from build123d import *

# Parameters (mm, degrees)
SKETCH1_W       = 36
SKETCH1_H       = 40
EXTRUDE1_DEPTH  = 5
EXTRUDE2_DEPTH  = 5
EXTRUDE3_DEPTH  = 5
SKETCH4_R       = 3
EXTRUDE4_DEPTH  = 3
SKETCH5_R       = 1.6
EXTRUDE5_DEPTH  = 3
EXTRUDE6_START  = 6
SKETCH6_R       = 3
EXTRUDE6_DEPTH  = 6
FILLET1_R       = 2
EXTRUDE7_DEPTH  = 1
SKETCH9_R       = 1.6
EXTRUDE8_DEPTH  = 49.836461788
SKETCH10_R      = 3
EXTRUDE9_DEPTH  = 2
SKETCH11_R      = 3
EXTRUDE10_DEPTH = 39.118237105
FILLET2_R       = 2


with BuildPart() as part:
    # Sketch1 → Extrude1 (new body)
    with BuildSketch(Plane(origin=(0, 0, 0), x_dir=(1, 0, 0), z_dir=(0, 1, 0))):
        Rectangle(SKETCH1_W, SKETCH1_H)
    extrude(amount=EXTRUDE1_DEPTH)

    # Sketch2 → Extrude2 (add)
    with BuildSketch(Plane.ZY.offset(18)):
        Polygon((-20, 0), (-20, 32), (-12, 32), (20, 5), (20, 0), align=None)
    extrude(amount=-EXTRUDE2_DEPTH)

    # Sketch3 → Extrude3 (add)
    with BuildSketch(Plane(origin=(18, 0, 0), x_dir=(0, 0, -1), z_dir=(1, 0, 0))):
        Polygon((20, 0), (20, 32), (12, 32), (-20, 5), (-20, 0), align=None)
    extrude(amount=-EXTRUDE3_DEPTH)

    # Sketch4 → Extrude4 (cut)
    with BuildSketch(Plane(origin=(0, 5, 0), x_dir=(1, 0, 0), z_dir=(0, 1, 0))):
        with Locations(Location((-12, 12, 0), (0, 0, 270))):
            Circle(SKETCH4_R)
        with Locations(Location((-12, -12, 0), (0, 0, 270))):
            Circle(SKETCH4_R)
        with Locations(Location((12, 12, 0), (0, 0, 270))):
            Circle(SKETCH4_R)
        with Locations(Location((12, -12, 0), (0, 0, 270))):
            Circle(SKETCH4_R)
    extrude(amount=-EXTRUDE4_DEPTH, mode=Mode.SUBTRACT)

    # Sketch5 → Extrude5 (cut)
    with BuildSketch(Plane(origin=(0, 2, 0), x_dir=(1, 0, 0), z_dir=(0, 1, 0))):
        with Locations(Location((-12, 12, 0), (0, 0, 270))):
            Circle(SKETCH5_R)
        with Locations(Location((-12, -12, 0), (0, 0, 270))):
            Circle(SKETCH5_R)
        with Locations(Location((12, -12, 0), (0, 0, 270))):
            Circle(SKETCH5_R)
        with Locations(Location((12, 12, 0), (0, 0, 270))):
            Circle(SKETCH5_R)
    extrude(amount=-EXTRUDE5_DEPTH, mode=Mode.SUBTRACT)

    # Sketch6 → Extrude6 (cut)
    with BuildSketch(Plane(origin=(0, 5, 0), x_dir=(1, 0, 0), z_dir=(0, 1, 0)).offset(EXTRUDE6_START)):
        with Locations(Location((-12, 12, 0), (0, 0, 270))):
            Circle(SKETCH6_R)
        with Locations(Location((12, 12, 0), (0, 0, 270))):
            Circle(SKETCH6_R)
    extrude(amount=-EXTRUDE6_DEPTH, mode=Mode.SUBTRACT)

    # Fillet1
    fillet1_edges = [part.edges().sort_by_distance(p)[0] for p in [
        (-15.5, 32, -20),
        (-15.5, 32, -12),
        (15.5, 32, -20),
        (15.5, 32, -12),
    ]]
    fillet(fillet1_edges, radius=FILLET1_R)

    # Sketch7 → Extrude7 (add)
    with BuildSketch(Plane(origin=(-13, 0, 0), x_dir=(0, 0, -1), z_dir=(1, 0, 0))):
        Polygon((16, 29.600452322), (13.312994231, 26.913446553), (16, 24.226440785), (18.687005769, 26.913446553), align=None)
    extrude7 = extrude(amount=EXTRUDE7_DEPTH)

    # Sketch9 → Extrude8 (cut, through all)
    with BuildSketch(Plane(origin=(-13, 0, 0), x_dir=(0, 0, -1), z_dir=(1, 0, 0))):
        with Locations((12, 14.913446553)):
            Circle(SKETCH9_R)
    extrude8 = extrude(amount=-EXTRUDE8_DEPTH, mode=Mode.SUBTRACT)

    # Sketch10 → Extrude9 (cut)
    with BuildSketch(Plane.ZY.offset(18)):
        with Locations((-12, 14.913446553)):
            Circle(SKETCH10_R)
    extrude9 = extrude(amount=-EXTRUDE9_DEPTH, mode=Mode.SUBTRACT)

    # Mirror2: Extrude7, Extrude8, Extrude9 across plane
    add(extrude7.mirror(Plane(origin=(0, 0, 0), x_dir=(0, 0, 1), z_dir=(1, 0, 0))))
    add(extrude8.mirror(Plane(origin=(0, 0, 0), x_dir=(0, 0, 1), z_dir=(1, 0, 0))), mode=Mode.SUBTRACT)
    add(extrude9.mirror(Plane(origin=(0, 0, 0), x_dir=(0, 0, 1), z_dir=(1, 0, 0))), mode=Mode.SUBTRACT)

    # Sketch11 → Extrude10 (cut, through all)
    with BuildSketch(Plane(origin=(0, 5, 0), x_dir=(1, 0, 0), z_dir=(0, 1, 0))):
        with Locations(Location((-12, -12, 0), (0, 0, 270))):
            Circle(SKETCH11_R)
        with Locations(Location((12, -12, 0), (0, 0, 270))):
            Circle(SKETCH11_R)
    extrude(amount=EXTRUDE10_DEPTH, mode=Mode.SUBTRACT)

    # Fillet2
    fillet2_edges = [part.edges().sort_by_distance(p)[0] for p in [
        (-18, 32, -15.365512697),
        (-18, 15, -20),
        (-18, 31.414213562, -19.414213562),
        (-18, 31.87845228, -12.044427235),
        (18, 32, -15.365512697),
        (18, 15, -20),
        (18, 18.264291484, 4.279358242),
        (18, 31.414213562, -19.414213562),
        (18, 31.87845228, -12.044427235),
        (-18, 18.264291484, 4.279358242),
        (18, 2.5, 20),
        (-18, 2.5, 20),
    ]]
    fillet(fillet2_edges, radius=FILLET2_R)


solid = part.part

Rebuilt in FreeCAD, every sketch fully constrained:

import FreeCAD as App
import Part
import Sketcher
from FreeCAD import Vector


def edges_at(feature, points):
    """Names of the edges that pass closest to the given points."""
    edges = feature.Shape.Edges
    near = lambda p: min(range(len(edges)), key=lambda i: edges[i].distToShape(Part.Vertex(*p))[0])
    return sorted({f"Edge{near(p) + 1}" for p in points})


def add_polygon(sketch, points):
    """Adds a closed chain of lines whose ends are joined by coincident constraints."""
    first, n = sketch.GeometryCount, len(points)
    for a, b in zip(points, points[1:] + points[:1]):
        sketch.addGeometry(Part.LineSegment(App.Vector(*a, 0), App.Vector(*b, 0)), False)
    for i in range(n):
        sketch.addConstraint(Sketcher.Constraint("Coincident", first + i, 2, first + (i + 1) % n, 1))

doc = App.newDocument("Part")
body = doc.addObject("PartDesign::Body", "Body")

sketch1 = body.newObject("Sketcher::SketchObject", "Sketch")
sketch1.AttachmentSupport = (doc.getObject("XZ_Plane"), [""])
sketch1.MapMode = "FlatFace"
add_polygon(sketch1, [(-18, -20), (-18, 20), (18, 20), (18, -20)])
sketch1.addConstraint(Sketcher.Constraint("Vertical", 0))
sketch1.addConstraint(Sketcher.Constraint("Horizontal", 1))
sketch1.addConstraint(Sketcher.Constraint("Vertical", 2))
sketch1.addConstraint(Sketcher.Constraint("Horizontal", 3))
sketch1.addConstraint(Sketcher.Constraint("Symmetric", 0, 2, 2, 2, -1, 1))
sketch1.addConstraint(Sketcher.Constraint("DistanceX", 1, 1, 1, 2, 36.0))
sketch1.addConstraint(Sketcher.Constraint("DistanceY", 0, 1, 0, 2, 40.0))
pad1 = body.newObject("PartDesign::Pad", "Pad")
pad1.Profile = sketch1
pad1.Length = 5
pad1.Reversed = True

sketch2 = body.newObject("Sketcher::SketchObject", "Sketch001")
sketch2.AttachmentSupport = (doc.getObject("YZ_Plane"), [""])
sketch2.MapMode = "FlatFace"
sketch2.AttachmentOffset = App.Placement(Vector(0, 0, -18), App.Rotation())
add_polygon(sketch2, [(32, -20), (0, -20), (0, 20), (5, 20), (32, -12)])
sketch2.addConstraint(Sketcher.Constraint("Horizontal", 0))
sketch2.addConstraint(Sketcher.Constraint("Vertical", 1))
sketch2.addConstraint(Sketcher.Constraint("Horizontal", 2))
sketch2.addConstraint(Sketcher.Constraint("Vertical", 4))
sketch2.addConstraint(Sketcher.Constraint("Symmetric", 0, 2, 1, 2, -1, 1))
sketch2.addConstraint(Sketcher.Constraint("DistanceX", 0, 2, 0, 1, 32.0))
sketch2.addConstraint(Sketcher.Constraint("DistanceX", 2, 1, 2, 2, 5.0))
sketch2.addConstraint(Sketcher.Constraint("DistanceY", 1, 1, 1, 2, 40.0))
sketch2.addConstraint(Sketcher.Constraint("DistanceY", 4, 2, 4, 1, 8.0))
pad2 = body.newObject("PartDesign::Pad", "Pad001")
pad2.Profile = sketch2
pad2.Length = 5

sketch3 = body.newObject("Sketcher::SketchObject", "Sketch002")
sketch3.AttachmentSupport = (doc.getObject("YZ_Plane"), [""])
sketch3.MapMode = "FlatFace"
sketch3.AttachmentOffset = App.Placement(Vector(0, 0, 18), App.Rotation())
add_polygon(sketch3, [(0, -20), (32, -20), (32, -12), (5, 20), (0, 20)])
sketch3.addConstraint(Sketcher.Constraint("Horizontal", 0))
sketch3.addConstraint(Sketcher.Constraint("Vertical", 1))
sketch3.addConstraint(Sketcher.Constraint("Horizontal", 3))
sketch3.addConstraint(Sketcher.Constraint("Vertical", 4))
sketch3.addConstraint(Sketcher.Constraint("Symmetric", 3, 2, 4, 2, -1, 1))
sketch3.addConstraint(Sketcher.Constraint("DistanceX", 0, 1, 0, 2, 32.0))
sketch3.addConstraint(Sketcher.Constraint("DistanceX", 3, 2, 3, 1, 5.0))
sketch3.addConstraint(Sketcher.Constraint("DistanceY", 1, 1, 1, 2, 8.0))
sketch3.addConstraint(Sketcher.Constraint("DistanceY", 4, 2, 4, 1, 40.0))
pad3 = body.newObject("PartDesign::Pad", "Pad002")
pad3.Profile = sketch3
pad3.Length = 5
pad3.Reversed = True

sketch4 = body.newObject("Sketcher::SketchObject", "Sketch003")
sketch4.AttachmentSupport = (doc.getObject("XZ_Plane"), [""])
sketch4.MapMode = "FlatFace"
sketch4.AttachmentOffset = App.Placement(Vector(0, 0, -5), App.Rotation())
sketch4.addGeometry(Part.Circle(Vector(-12, -12, 0), Vector(0, 0, 1), 3), False)
sketch4.addGeometry(Part.Circle(Vector(-12, 12, 0), Vector(0, 0, 1), 3), False)
sketch4.addGeometry(Part.Circle(Vector(12, -12, 0), Vector(0, 0, 1), 3), False)
sketch4.addGeometry(Part.Circle(Vector(12, 12, 0), Vector(0, 0, 1), 3), False)
sketch4.addConstraint(Sketcher.Constraint("Equal", 0, 1))
sketch4.addConstraint(Sketcher.Constraint("Equal", 1, 2))
sketch4.addConstraint(Sketcher.Constraint("Equal", 2, 3))
sketch4.addConstraint(Sketcher.Constraint("Symmetric", 1, 3, 2, 3, -1, 1))
sketch4.addConstraint(Sketcher.Constraint("Symmetric", 0, 3, 3, 3, -1, 1))
sketch4.addConstraint(Sketcher.Constraint("Symmetric", 0, 3, 2, 3, -2))
sketch4.addConstraint(Sketcher.Constraint("Diameter", 0, 6.0))
sketch4.addConstraint(Sketcher.Constraint("DistanceX", 0, 3, -1, 1, 12.0))
sketch4.addConstraint(Sketcher.Constraint("DistanceY", 0, 3, -1, 1, 12.0))
pocket1 = body.newObject("PartDesign::Pocket", "Pocket")
pocket1.Profile = sketch4
pocket1.Length = 3
pocket1.Reversed = True

sketch5 = body.newObject("Sketcher::SketchObject", "Sketch004")
sketch5.AttachmentSupport = (doc.getObject("XZ_Plane"), [""])
sketch5.MapMode = "FlatFace"
sketch5.AttachmentOffset = App.Placement(Vector(0, 0, -2), App.Rotation())
sketch5.addGeometry(Part.Circle(Vector(-12, -12, 0), Vector(0, 0, 1), 1.6), False)
sketch5.addGeometry(Part.Circle(Vector(-12, 12, 0), Vector(0, 0, 1), 1.6), False)
sketch5.addGeometry(Part.Circle(Vector(12, 12, 0), Vector(0, 0, 1), 1.6), False)
sketch5.addGeometry(Part.Circle(Vector(12, -12, 0), Vector(0, 0, 1), 1.6), False)
sketch5.addConstraint(Sketcher.Constraint("Equal", 0, 1))
sketch5.addConstraint(Sketcher.Constraint("Equal", 1, 2))
sketch5.addConstraint(Sketcher.Constraint("Equal", 2, 3))
sketch5.addConstraint(Sketcher.Constraint("Symmetric", 0, 3, 2, 3, -1, 1))
sketch5.addConstraint(Sketcher.Constraint("Symmetric", 1, 3, 3, 3, -1, 1))
sketch5.addConstraint(Sketcher.Constraint("Symmetric", 1, 3, 2, 3, -2))
sketch5.addConstraint(Sketcher.Constraint("Diameter", 0, 3.2))
sketch5.addConstraint(Sketcher.Constraint("DistanceX", 0, 3, -1, 1, 12.0))
sketch5.addConstraint(Sketcher.Constraint("DistanceY", 0, 3, -1, 1, 12.0))
pocket2 = body.newObject("PartDesign::Pocket", "Pocket001")
pocket2.Profile = sketch5
pocket2.Length = 3
pocket2.Reversed = True

sketch6 = body.newObject("Sketcher::SketchObject", "Sketch005")
sketch6.AttachmentSupport = (doc.getObject("XZ_Plane"), [""])
sketch6.MapMode = "FlatFace"
sketch6.AttachmentOffset = App.Placement(Vector(0, 0, -11), App.Rotation())
sketch6.addGeometry(Part.Circle(Vector(-12, -12, 0), Vector(0, 0, 1), 3), False)
sketch6.addGeometry(Part.Circle(Vector(12, -12, 0), Vector(0, 0, 1), 3), False)
sketch6.addConstraint(Sketcher.Constraint("Equal", 0, 1))
sketch6.addConstraint(Sketcher.Constraint("Symmetric", 0, 3, 1, 3, -2))
sketch6.addConstraint(Sketcher.Constraint("Diameter", 0, 6.0))
sketch6.addConstraint(Sketcher.Constraint("DistanceX", 0, 3, -1, 1, 12.0))
sketch6.addConstraint(Sketcher.Constraint("DistanceY", 0, 3, -1, 1, 12.0))
pocket3 = body.newObject("PartDesign::Pocket", "Pocket002")
pocket3.Profile = sketch6
pocket3.Length = 6
pocket3.Reversed = True
doc.recompute()

fillet = body.newObject("PartDesign::Fillet", "Fillet")
fillet.Base = (pocket3, edges_at(pocket3, [
    (-15.5, 32, -20),
    (-15.5, 32, -12),
    (15.5, 32, -20),
    (15.5, 32, -12),
]))
fillet.Radius = 2

sketch7 = body.newObject("Sketcher::SketchObject", "Sketch006")
sketch7.AttachmentSupport = (doc.getObject("YZ_Plane"), [""])
sketch7.MapMode = "FlatFace"
sketch7.AttachmentOffset = App.Placement(Vector(0, 0, -13), App.Rotation())
add_polygon(sketch7, [(29.600452, -16), (26.913447, -13.312994), (24.226441, -16), (26.913447, -18.687006)])
sketch7.addConstraint(Sketcher.Constraint("Perpendicular", 0, 1))
sketch7.addConstraint(Sketcher.Constraint("Perpendicular", 1, 2))
sketch7.addConstraint(Sketcher.Constraint("Perpendicular", 2, 3))
sketch7.addConstraint(Sketcher.Constraint("Horizontal", 1, 2, 3, 2))
sketch7.addConstraint(Sketcher.Constraint("Vertical", 0, 2, 2, 2))
sketch7.addConstraint(Sketcher.Constraint("DistanceY", 1, 2, -1, 1, 16.0))
sketch7.addConstraint(Sketcher.Constraint("Distance", 0, 3.8))
sketch7.addConstraint(Sketcher.Constraint("DistanceX", -1, 1, 1, 2, 24.226441))
pad4 = body.newObject("PartDesign::Pad", "Pad003")
pad4.Profile = sketch7
pad4.Length = 1

sketch8 = body.newObject("Sketcher::SketchObject", "Sketch007")
sketch8.AttachmentSupport = (doc.getObject("YZ_Plane"), [""])
sketch8.MapMode = "FlatFace"
sketch8.AttachmentOffset = App.Placement(Vector(0, 0, -13), App.Rotation())
sketch8.addGeometry(Part.Circle(Vector(14.913447, -12, 0), Vector(0, 0, 1), 1.6), False)
sketch8.addConstraint(Sketcher.Constraint("Diameter", 0, 3.2))
sketch8.addConstraint(Sketcher.Constraint("DistanceY", 0, 3, -1, 1, 12.0))
sketch8.addConstraint(Sketcher.Constraint("DistanceX", -1, 1, 0, 3, 14.913447))
pocket4 = body.newObject("PartDesign::Pocket", "Pocket003")
pocket4.Profile = sketch8
pocket4.Type = "ThroughAll"

sketch9 = body.newObject("Sketcher::SketchObject", "Sketch008")
sketch9.AttachmentSupport = (doc.getObject("YZ_Plane"), [""])
sketch9.MapMode = "FlatFace"
sketch9.AttachmentOffset = App.Placement(Vector(0, 0, -18), App.Rotation())
sketch9.addGeometry(Part.Circle(Vector(14.913447, -12, 0), Vector(0, 0, 1), 3), False)
sketch9.addConstraint(Sketcher.Constraint("Diameter", 0, 6.0))
sketch9.addConstraint(Sketcher.Constraint("DistanceY", 0, 3, -1, 1, 12.0))
sketch9.addConstraint(Sketcher.Constraint("DistanceX", -1, 1, 0, 3, 14.913447))
pocket5 = body.newObject("PartDesign::Pocket", "Pocket004")
pocket5.Profile = sketch9
pocket5.Length = 2
pocket5.Reversed = True
doc.recompute()

mirrored = body.newObject("PartDesign::Mirrored", "Mirrored")
mirrored.Originals = [pad4, pocket4, pocket5]
mirrored.MirrorPlane = (doc.getObject("YZ_Plane"), [""])
body.Tip = mirrored

sketch10 = body.newObject("Sketcher::SketchObject", "Sketch009")
sketch10.AttachmentSupport = (doc.getObject("XZ_Plane"), [""])
sketch10.MapMode = "FlatFace"
sketch10.AttachmentOffset = App.Placement(Vector(0, 0, -5), App.Rotation())
sketch10.addGeometry(Part.Circle(Vector(-12, 12, 0), Vector(0, 0, 1), 3), False)
sketch10.addGeometry(Part.Circle(Vector(12, 12, 0), Vector(0, 0, 1), 3), False)
sketch10.addConstraint(Sketcher.Constraint("Equal", 0, 1))
sketch10.addConstraint(Sketcher.Constraint("Symmetric", 0, 3, 1, 3, -2))
sketch10.addConstraint(Sketcher.Constraint("Diameter", 0, 6.0))
sketch10.addConstraint(Sketcher.Constraint("DistanceX", 0, 3, -1, 1, 12.0))
sketch10.addConstraint(Sketcher.Constraint("DistanceY", -1, 1, 0, 3, 12.0))
pocket6 = body.newObject("PartDesign::Pocket", "Pocket005")
pocket6.Profile = sketch10
pocket6.Type = "ThroughAll"
doc.recompute()

fillet2 = body.newObject("PartDesign::Fillet", "Fillet001")
fillet2.Base = (pocket6, edges_at(pocket6, [
    (-18, 32, -15.366),
    (-18, 15, -20),
    (-18, 31.414, -19.414),
    (-18, 31.878, -12.044),
    (18, 32, -15.366),
    (18, 15, -20),
    (18, 18.264, 4.279),
    (18, 31.414, -19.414),
    (18, 31.878, -12.044),
    (-18, 18.264, 4.279),
    (18, 2.5, 20),
    (-18, 2.5, 20),
]))
fillet2.Radius = 2

doc.recompute()
